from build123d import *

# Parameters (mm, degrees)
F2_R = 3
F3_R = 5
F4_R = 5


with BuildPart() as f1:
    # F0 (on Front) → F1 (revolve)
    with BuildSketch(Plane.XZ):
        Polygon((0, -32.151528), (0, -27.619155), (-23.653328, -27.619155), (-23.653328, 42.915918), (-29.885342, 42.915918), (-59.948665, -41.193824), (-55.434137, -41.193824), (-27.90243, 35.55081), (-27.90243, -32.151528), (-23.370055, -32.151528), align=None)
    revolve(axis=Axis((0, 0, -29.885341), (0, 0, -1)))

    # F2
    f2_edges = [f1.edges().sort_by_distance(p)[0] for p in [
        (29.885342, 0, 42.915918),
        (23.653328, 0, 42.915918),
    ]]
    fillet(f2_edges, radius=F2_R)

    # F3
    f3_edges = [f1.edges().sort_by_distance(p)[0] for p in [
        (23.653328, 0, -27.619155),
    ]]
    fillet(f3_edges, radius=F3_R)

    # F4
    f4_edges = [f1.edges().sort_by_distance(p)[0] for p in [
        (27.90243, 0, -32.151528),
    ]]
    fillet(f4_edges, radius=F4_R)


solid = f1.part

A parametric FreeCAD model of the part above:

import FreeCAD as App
import Part
import Sketcher
from FreeCAD import Vector
Q = App.Units.Quantity


def edges_at(feature, points):
    """Names of the edges that pass closest to the given points."""
    edges = feature.Shape.Edges
    near = lambda p: min(range(len(edges)), key=lambda i: edges[i].distToShape(Part.Vertex(*p))[0])
    return sorted({f"Edge{near(p) + 1}" for p in points})

doc = App.newDocument("Part")
body = doc.addObject("PartDesign::Body", "Body")

sketch1 = body.newObject("Sketcher::SketchObject", "Sketch")
sketch1.AttachmentSupport = (doc.getObject("XZ_Plane"), [""])
sketch1.MapMode = "FlatFace"
sketch1.addGeometry(Part.LineSegment(Vector(0, -32.151528, 0), Vector(0, -27.619155, 0)), False)
sketch1.addGeometry(Part.LineSegment(Vector(0, -27.619155, 0), Vector(-23.653328, -27.619155, 0)), False)
sketch1.addGeometry(Part.LineSegment(Vector(-23.653328, -27.619155, 0), Vector(-23.653328, 42.915918, 0)), False)
sketch1.addGeometry(Part.LineSegment(Vector(-23.653328, 42.915918, 0), Vector(-29.885342, 42.915918, 0)), False)
sketch1.addGeometry(Part.LineSegment(Vector(-29.885342, 42.915918, 0), Vector(-59.948665, -41.193824, 0)), False)
sketch1.addGeometry(Part.LineSegment(Vector(-59.948665, -41.193824, 0), Vector(-55.434137, -41.193824, 0)), False)
sketch1.addGeometry(Part.LineSegment(Vector(-55.434137, -41.193824, 0), Vector(-27.90243, 35.55081, 0)), False)
sketch1.addGeometry(Part.LineSegment(Vector(-27.90243, 35.55081, 0), Vector(-27.90243, -32.151528, 0)), False)
sketch1.addGeometry(Part.LineSegment(Vector(-27.90243, -32.151528, 0), Vector(0, -32.151528, 0)), False)
sketch1.addConstraint(Sketcher.Constraint("Coincident", 0, 2, 1, 1))
sketch1.addConstraint(Sketcher.Constraint("Coincident", 1, 2, 2, 1))
sketch1.addConstraint(Sketcher.Constraint("Coincident", 2, 2, 3, 1))
sketch1.addConstraint(Sketcher.Constraint("Coincident", 3, 2, 4, 1))
sketch1.addConstraint(Sketcher.Constraint("Coincident", 4, 2, 5, 1))
sketch1.addConstraint(Sketcher.Constraint("Coincident", 5, 2, 6, 1))
sketch1.addConstraint(Sketcher.Constraint("Coincident", 6, 2, 7, 1))
sketch1.addConstraint(Sketcher.Constraint("Coincident", 7, 2, 8, 1))
sketch1.addConstraint(Sketcher.Constraint("Coincident", 8, 2, 0, 1))
sketch1.addConstraint(Sketcher.Constraint("Vertical", 0))
sketch1.addConstraint(Sketcher.Constraint("Horizontal", 1))
sketch1.addConstraint(Sketcher.Constraint("Vertical", 2))
sketch1.addConstraint(Sketcher.Constraint("Horizontal", 3))
sketch1.addConstraint(Sketcher.Constraint("Horizontal", 5))
sketch1.addConstraint(Sketcher.Constraint("Vertical", 7))
sketch1.addConstraint(Sketcher.Constraint("Horizontal", 8))
sketch1.addConstraint(Sketcher.Constraint("PointOnObject", 0, 2, -2))
sketch1.addConstraint(Sketcher.Constraint("DistanceX", 8, 1, 8, 2, Q("27.90243 mm")))
sketch1.addConstraint(Sketcher.Constraint("Distance", 4, Q("89.321062 mm")))
sketch1.addConstraint(Sketcher.Constraint("DistanceX", 1, 2, 1, 1, Q("23.653328 mm")))
sketch1.addConstraint(Sketcher.Constraint("DistanceX", 3, 2, 3, 1, Q("6.232014 mm")))
sketch1.addConstraint(Sketcher.Constraint("DistanceX", 5, 1, 5, 2, Q("4.514528 mm")))
sketch1.addConstraint(Sketcher.Constraint("DistanceY", 0, 1, 0, 2, Q("4.532373 mm")))
sketch1.addConstraint(Sketcher.Constraint("DistanceY", 2, 1, 2, 2, Q("70.535073 mm")))
sketch1.addConstraint(Sketcher.Constraint("DistanceY", 7, 2, 7, 1, Q("67.702338 mm")))
sketch1.addConstraint(Sketcher.Constraint("DistanceY", -1, 1, 6, 2, Q("35.55081 mm")))
sketch1.addConstraint(Sketcher.Constraint("DistanceY", 4, 2, 1, 2, Q("13.574669 mm")))
revolution = body.newObject("PartDesign::Revolution", "Revolution")
revolution.Profile = sketch1
revolution.ReferenceAxis = (sketch1, ["V_Axis"])
revolution.Angle = 360
doc.recompute()

fillet = body.newObject("PartDesign::Fillet", "Fillet")
fillet.Base = (revolution, edges_at(revolution, [(29.885, 0, 42.916), (23.653, 0, 42.916)]))
fillet.Radius = 3
doc.recompute()

fillet2 = body.newObject("PartDesign::Fillet", "Fillet001")
fillet2.Base = (fillet, edges_at(fillet, [(23.653, 0, -27.619)]))
fillet2.Radius = 5
doc.recompute()

fillet3 = body.newObject("PartDesign::Fillet", "Fillet002")
fillet3.Base = (fillet2, edges_at(fillet2, [(27.902, 0, -32.152)]))
fillet3.Radius = 5

doc.recompute()
